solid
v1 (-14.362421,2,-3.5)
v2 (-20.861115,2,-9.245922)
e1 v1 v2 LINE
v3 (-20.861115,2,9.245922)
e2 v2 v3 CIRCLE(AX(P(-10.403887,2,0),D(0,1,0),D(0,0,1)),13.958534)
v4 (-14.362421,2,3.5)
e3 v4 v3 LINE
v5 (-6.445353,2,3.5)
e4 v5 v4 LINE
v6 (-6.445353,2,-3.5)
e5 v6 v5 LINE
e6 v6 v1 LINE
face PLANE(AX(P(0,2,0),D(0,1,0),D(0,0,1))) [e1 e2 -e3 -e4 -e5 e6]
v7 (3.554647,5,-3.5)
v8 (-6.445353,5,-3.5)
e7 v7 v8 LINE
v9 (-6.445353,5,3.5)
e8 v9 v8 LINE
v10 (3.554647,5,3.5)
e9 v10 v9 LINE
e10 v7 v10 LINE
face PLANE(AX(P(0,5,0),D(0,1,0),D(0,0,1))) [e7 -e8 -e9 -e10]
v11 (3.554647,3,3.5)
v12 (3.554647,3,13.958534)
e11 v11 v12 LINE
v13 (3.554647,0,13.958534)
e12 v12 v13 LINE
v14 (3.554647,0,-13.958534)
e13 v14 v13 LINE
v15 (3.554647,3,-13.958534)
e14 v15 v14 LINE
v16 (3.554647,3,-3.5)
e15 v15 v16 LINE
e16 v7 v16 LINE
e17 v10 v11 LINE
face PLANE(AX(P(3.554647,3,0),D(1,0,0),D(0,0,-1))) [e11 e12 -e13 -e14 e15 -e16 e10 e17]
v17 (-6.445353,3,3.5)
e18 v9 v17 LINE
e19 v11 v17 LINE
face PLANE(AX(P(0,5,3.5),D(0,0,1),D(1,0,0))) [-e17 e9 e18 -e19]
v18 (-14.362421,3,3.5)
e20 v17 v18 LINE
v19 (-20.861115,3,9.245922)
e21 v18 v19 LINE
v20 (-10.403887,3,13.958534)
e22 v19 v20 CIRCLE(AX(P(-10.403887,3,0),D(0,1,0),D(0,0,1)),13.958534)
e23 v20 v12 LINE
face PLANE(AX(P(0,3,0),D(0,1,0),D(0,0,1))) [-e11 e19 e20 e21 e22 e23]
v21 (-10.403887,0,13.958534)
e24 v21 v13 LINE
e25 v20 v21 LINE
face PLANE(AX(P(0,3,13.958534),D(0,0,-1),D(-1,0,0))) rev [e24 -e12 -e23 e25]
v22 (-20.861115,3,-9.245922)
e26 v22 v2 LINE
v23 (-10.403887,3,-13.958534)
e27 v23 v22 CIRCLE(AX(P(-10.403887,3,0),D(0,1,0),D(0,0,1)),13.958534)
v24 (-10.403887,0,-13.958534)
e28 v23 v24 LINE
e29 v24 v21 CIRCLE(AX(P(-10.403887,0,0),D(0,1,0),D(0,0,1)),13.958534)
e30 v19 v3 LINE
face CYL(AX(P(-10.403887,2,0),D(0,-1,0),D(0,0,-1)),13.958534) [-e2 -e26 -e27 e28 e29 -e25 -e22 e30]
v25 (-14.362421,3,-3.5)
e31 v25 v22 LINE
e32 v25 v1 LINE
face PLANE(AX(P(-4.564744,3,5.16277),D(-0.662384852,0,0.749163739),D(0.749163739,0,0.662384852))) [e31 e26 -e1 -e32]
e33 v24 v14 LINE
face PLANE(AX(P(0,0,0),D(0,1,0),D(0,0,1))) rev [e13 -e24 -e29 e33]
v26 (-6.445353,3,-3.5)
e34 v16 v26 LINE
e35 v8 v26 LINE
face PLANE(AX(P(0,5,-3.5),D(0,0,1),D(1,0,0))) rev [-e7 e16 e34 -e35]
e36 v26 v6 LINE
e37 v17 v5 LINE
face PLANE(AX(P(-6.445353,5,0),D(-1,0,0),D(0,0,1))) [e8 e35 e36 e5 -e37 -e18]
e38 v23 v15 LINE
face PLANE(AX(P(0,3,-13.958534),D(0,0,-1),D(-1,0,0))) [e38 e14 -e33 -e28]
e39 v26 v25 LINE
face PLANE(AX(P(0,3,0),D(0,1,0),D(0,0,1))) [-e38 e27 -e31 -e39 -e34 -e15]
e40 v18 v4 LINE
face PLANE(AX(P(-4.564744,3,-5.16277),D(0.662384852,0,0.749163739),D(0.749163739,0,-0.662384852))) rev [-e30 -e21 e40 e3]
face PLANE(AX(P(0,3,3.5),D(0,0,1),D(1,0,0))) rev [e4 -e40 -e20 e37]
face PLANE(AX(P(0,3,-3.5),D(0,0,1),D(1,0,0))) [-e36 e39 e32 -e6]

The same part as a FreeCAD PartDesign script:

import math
import FreeCAD as App
import Part
import Sketcher
Q = App.Units.Quantity

doc = App.newDocument("Part")
body = doc.addObject("PartDesign::Body", "Body")

# Sketch on XZ plane
sketch1 = body.newObject("Sketcher::SketchObject", "Sketch")
sketch1.AttachmentSupport = (doc.getObject("XZ_Plane"), [""])
sketch1.MapMode = "FlatFace"
sketch1.addGeometry([
    Part.LineSegment(App.Vector(-6.445353, -3.5, 0), App.Vector(-14.362421, -3.5, 0)),  # 0
    Part.LineSegment(App.Vector(-14.362421, -3.5, 0), App.Vector(-20.861115, -9.245922, 0)),  # 1
    Part.ArcOfCircle(Part.Circle(App.Vector(-10.403887, 0, 0), App.Vector(0, 0, 1), 13.958534), math.radians(138.51799), math.radians(221.48201)),  # 2
    Part.LineSegment(App.Vector(-20.861115, 9.245922, 0), App.Vector(-14.362421, 3.5, 0)),  # 3
    Part.LineSegment(App.Vector(-14.362421, 3.5, 0), App.Vector(-6.445353, 3.5, 0)),  # 4
    Part.LineSegment(App.Vector(-6.445353, 3.5, 0), App.Vector(-6.445353, -3.5, 0)),  # 5
], False)
sketch1.addConstraint([
    Sketcher.Constraint("Coincident", 0, 2, 1, 1),
    Sketcher.Constraint("Coincident", 1, 2, 2, 2),
    Sketcher.Constraint("Coincident", 2, 1, 3, 1),
    Sketcher.Constraint("Coincident", 3, 2, 4, 1),
    Sketcher.Constraint("Coincident", 4, 2, 5, 1),
    Sketcher.Constraint("Coincident", 5, 2, 0, 1),
    Sketcher.Constraint("Horizontal", 0),
    Sketcher.Constraint("Horizontal", 4),
    Sketcher.Constraint("Vertical", 5),
    Sketcher.Constraint("Symmetric", 1, 2, 2, 1, -1),
    Sketcher.Constraint("Symmetric", 0, 2, 3, 2, -1),
    Sketcher.Constraint("DistanceY", 5, 2, 5, 1, Q("7 mm")),
    Sketcher.Constraint("Radius", 2, Q("13.958534 mm")),
    Sketcher.Constraint("DistanceX", 0, 2, 0, 1, Q("7.917068 mm")),
    Sketcher.Constraint("DistanceX", 0, 2, -1, 1, Q("14.362421 mm")),
    Sketcher.Constraint("DistanceY", 1, 2, -1, 1, Q("9.245922 mm")),
    Sketcher.Constraint("DistanceX", 2, 1, 4, 2, Q("14.415762 mm")),
])
pad1 = body.newObject("PartDesign::Pad", "Pad")
pad1.Profile = sketch1
pad1.Length = 2
pad1.Reversed = True

# Sketch on XZ plane
sketch2 = body.newObject("Sketcher::SketchObject", "Sketch001")
sketch2.AttachmentSupport = (doc.getObject("XZ_Plane"), [""])
sketch2.MapMode = "FlatFace"
sketch2.addGeometry([
    Part.ArcOfCircle(Part.Circle(App.Vector(-10.403887, 0, 0), App.Vector(0, 0, 1), 13.958534), math.radians(-138.51799), math.radians(-90)),  # 0
    Part.LineSegment(App.Vector(-20.861115, -9.245922, 0), App.Vector(-14.362421, -3.5, 0)),  # 1
    Part.LineSegment(App.Vector(-14.362421, -3.5, 0), App.Vector(3.554647, -3.5, 0)),  # 2
    Part.LineSegment(App.Vector(3.554647, -3.5, 0), App.Vector(3.554647, -13.958534, 0)),  # 3
    Part.LineSegment(App.Vector(3.554647, -13.958534, 0), App.Vector(-10.403887, -13.958534, 0)),  # 4
    Part.LineSegment(App.Vector(-14.362421, 3.5, 0), App.Vector(-20.861115, 9.245922, 0)),  # 5
    Part.ArcOfCircle(Part.Circle(App.Vector(-10.403887, 0, 0), App.Vector(0, 0, 1), 13.958534), math.radians(90), math.radians(138.51799)),  # 6
    Part.LineSegment(App.Vector(-10.403887, 13.958534, 0), App.Vector(3.554647, 13.958534, 0)),  # 7
    Part.LineSegment(App.Vector(3.554647, 13.958534, 0), App.Vector(3.554647, 3.5, 0)),  # 8
    Part.LineSegment(App.Vector(3.554647, 3.5, 0), App.Vector(-14.362421, 3.5, 0)),  # 9
], False)
sketch2.addConstraint([
    Sketcher.Constraint("Coincident", 0, 1, 1, 1),
    Sketcher.Constraint("Coincident", 1, 2, 2, 1),
    Sketcher.Constraint("Coincident", 2, 2, 3, 1),
    Sketcher.Constraint("Coincident", 3, 2, 4, 1),
    Sketcher.Constraint("Tangent", 4, 2, 0, 2),
    Sketcher.Constraint("Coincident", 5, 2, 6, 2),
    Sketcher.Constraint("Tangent", 6, 1, 7, 1),
    Sketcher.Constraint("Coincident", 7, 2, 8, 1),
    Sketcher.Constraint("Coincident", 8, 2, 9, 1),
    Sketcher.Constraint("Coincident", 9, 2, 5, 1),
    Sketcher.Constraint("Horizontal", 2),
    Sketcher.Constraint("Vertical", 3),
    Sketcher.Constraint("Horizontal", 4),
    Sketcher.Constraint("Horizontal", 7),
    Sketcher.Constraint("Vertical", 8),
    Sketcher.Constraint("Horizontal", 9),
    Sketcher.Constraint("Coincident", 6, 3, 0, 3),
    Sketcher.Constraint("Equal", 0, 6),
    Sketcher.Constraint("Symmetric", 0, 1, 5, 2, -1),
    Sketcher.Constraint("Symmetric", 2, 2, 8, 2, -1),
    Sketcher.Constraint("Vertical", 1, 2, 9, 2),
    Sketcher.Constraint("DistanceY", 2, 2, 8, 2, Q("7 mm")),
    Sketcher.Constraint("Radius", 0, Q("13.958534 mm")),
    Sketcher.Constraint("DistanceX", 2, 1, 2, 2, Q("17.917068 mm")),
    Sketcher.Constraint("DistanceX", 4, 2, 4, 1, Q("13.958534 mm")),
    Sketcher.Constraint("DistanceY", 0, 1, -1, 1, Q("9.245922 mm")),
    Sketcher.Constraint("DistanceX", 1, 2, -1, 1, Q("14.362421 mm")),
])
pad2 = body.newObject("PartDesign::Pad", "Pad001")
pad2.Profile = sketch2
pad2.Length = 3
pad2.Reversed = True

# Sketch on XZ plane
sketch3 = body.newObject("Sketcher::SketchObject", "Sketch002")
sketch3.AttachmentSupport = (doc.getObject("XZ_Plane"), [""])
sketch3.MapMode = "FlatFace"
sketch3.addGeometry([
    Part.LineSegment(App.Vector(-6.445353, -3.5, 0), App.Vector(-6.445353, 3.5, 0)),
    Part.LineSegment(App.Vector(-6.445353, 3.5, 0), App.Vector(3.554647, 3.5, 0)),
    Part.LineSegment(App.Vector(3.554647, 3.5, 0), App.Vector(3.554647, -3.5, 0)),
    Part.LineSegment(App.Vector(3.554647, -3.5, 0), App.Vector(-6.445353, -3.5, 0)),
], False)
sketch3.addConstraint([
    Sketcher.Constraint("Coincident", 0, 2, 1, 1),
    Sketcher.Constraint("Coincident", 1, 2, 2, 1),
    Sketcher.Constraint("Coincident", 2, 2, 3, 1),
    Sketcher.Constraint("Coincident", 3, 2, 0, 1),
    Sketcher.Constraint("Vertical", 0),
    Sketcher.Constraint("Horizontal", 1),
    Sketcher.Constraint("Vertical", 2),
    Sketcher.Constraint("Horizontal", 3),
    Sketcher.Constraint("DistanceX", 1, 1, 1, 2, Q("10 mm")),
    Sketcher.Constraint("DistanceY", 0, 1, 0, 2, Q("7 mm")),
    Sketcher.Constraint("DistanceY", -1, 1, 0, 2, Q("3.5 mm")),
    Sketcher.Constraint("DistanceX", 0, 2, -1, 1, Q("6.445353 mm")),
])
pad3 = body.newObject("PartDesign::Pad", "Pad002")
pad3.Profile = sketch3
pad3.Length = 5
pad3.Reversed = True

doc.recompute()
